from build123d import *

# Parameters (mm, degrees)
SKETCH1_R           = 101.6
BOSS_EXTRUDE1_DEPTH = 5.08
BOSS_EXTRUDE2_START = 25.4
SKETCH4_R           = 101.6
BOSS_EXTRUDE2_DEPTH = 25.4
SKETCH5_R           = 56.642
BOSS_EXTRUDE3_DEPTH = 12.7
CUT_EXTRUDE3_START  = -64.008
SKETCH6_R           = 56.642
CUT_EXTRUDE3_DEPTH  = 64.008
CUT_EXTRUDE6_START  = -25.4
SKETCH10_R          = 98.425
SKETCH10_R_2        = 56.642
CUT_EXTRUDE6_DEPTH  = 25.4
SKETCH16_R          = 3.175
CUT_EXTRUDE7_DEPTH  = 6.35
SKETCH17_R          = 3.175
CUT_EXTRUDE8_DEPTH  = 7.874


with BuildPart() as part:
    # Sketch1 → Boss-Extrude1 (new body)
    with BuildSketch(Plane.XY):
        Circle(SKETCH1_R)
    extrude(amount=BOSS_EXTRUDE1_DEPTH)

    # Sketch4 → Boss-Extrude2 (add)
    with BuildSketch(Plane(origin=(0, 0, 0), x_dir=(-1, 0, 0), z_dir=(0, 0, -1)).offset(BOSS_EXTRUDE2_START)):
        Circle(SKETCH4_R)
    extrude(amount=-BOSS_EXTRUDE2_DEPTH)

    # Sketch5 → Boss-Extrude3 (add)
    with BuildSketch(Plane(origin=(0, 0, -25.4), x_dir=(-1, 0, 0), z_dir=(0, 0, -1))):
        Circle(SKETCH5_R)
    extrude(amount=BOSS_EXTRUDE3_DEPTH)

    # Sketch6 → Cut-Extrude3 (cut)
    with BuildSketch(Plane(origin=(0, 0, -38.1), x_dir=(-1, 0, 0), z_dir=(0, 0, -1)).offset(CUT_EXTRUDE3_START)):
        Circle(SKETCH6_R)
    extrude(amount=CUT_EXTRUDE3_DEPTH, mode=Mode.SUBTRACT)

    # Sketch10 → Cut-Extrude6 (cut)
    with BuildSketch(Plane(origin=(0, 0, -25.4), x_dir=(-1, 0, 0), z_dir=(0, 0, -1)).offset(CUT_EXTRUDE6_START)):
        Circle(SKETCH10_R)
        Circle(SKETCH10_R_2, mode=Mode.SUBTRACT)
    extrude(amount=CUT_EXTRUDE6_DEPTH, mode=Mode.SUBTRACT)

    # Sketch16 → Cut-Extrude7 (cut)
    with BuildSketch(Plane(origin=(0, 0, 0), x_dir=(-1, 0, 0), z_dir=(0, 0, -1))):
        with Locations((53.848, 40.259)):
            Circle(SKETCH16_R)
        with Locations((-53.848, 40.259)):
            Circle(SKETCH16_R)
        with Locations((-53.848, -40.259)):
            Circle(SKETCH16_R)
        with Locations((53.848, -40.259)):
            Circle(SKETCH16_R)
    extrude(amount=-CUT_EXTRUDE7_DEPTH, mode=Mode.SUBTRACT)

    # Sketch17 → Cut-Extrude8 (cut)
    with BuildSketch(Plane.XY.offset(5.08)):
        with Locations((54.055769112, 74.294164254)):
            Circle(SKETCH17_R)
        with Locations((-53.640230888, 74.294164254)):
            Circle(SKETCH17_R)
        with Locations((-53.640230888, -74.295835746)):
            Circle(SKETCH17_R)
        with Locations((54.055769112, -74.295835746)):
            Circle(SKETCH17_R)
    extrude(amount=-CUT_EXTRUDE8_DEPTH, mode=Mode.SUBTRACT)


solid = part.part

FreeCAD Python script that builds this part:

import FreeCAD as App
import Part
import Sketcher
Q = App.Units.Quantity

doc = App.newDocument("Part")
params = doc.addObject("Spreadsheet::Sheet", "Params")
for row, (alias, value) in enumerate([
    ("sketch1_diameter", "8 in"),
    ("pad1_length", "0.2 in"),
    ("sketch2_diameter", "8 in"),
    ("pad2_length", "1 in"),
    ("sketch3_diameter", "4.46 in"),
    ("pad3_length", "0.5 in"),
    ("sketch4_diameter", "4.46 in"),
    ("pocket1_length", "2.52 in"),
    ("sketch5_diameter", "7.75 in"),
    ("sketch5_diameter2", "4.46 in"),
    ("pocket2_length", "1 in"),
    ("sketch6_diameter", "0.25 in"),
    ("pocket3_length", "0.25 in"),
    ("sketch7_diameter", "0.25 in"),
    ("pocket4_length", "0.31 in"),
], start=1):
    params.set(f"A{row}", alias)
    params.set(f"B{row}", "=" + value)
    params.setAlias(f"B{row}", alias)

body = doc.addObject("PartDesign::Body", "Body")

sketch1 = body.newObject("Sketcher::SketchObject", "Sketch")
sketch1.AttachmentSupport = (doc.getObject("XY_Plane"), [""])
sketch1.MapMode = "FlatFace"
sketch1.addGeometry(Part.Circle(App.Vector(0, 0, 0), App.Vector(0, 0, 1), 102), False)
sketch1.addConstraint([
    Sketcher.Constraint("Coincident", 0, 3, -1, 1),
    Sketcher.Constraint("Diameter", 0, Q("8 in")),
])
sketch1.setExpression("Constraints[1]", "Params.sketch1_diameter")
pad1 = body.newObject("PartDesign::Pad", "Pad")
pad1.Profile = sketch1
pad1.setExpression("Length", "Params.pad1_length")

sketch2 = body.newObject("Sketcher::SketchObject", "Sketch001")
sketch2.AttachmentSupport = (doc.getObject("XY_Plane"), [""])
sketch2.MapMode = "FlatFace"
sketch2.AttachmentOffset = App.Placement(App.Vector(0, 0, -1 * 25.4), App.Rotation())
sketch2.addGeometry(Part.Circle(App.Vector(0, 0, 0), App.Vector(0, 0, 1), 102), False)
sketch2.addConstraint([
    Sketcher.Constraint("Coincident", 0, 3, -1, 1),
    Sketcher.Constraint("Diameter", 0, Q("8 in")),
])
sketch2.setExpression("Constraints[1]", "Params.sketch2_diameter")
pad2 = body.newObject("PartDesign::Pad", "Pad001")
pad2.Profile = sketch2
pad2.setExpression("Length", "Params.pad2_length")

sketch3 = body.newObject("Sketcher::SketchObject", "Sketch002")
sketch3.AttachmentSupport = (doc.getObject("XY_Plane"), [""])
sketch3.MapMode = "FlatFace"
sketch3.AttachmentOffset = App.Placement(App.Vector(0, 0, -1 * 25.4), App.Rotation())
sketch3.addGeometry(Part.Circle(App.Vector(0, 0, 0), App.Vector(0, 0, 1), 57), False)
sketch3.addConstraint([
    Sketcher.Constraint("Coincident", 0, 3, -1, 1),
    Sketcher.Constraint("Diameter", 0, Q("4.46 in")),
])
sketch3.setExpression("Constraints[1]", "Params.sketch3_diameter")
pad3 = body.newObject("PartDesign::Pad", "Pad002")
pad3.Profile = sketch3
pad3.setExpression("Length", "Params.pad3_length")
pad3.Reversed = True

sketch4 = body.newObject("Sketcher::SketchObject", "Sketch003")
sketch4.AttachmentSupport = (doc.getObject("XY_Plane"), [""])
sketch4.MapMode = "FlatFace"
sketch4.AttachmentOffset = App.Placement(App.Vector(0, 0, 1.02 * 25.4), App.Rotation())
sketch4.addGeometry(Part.Circle(App.Vector(0, 0, 0), App.Vector(0, 0, 1), 57), False)
sketch4.addConstraint([
    Sketcher.Constraint("Coincident", 0, 3, -1, 1),
    Sketcher.Constraint("Diameter", 0, Q("4.46 in")),
])
sketch4.setExpression("Constraints[1]", "Params.sketch4_diameter")
pocket1 = body.newObject("PartDesign::Pocket", "Pocket")
pocket1.Profile = sketch4
pocket1.setExpression("Length", "Params.pocket1_length")

sketch5 = body.newObject("Sketcher::SketchObject", "Sketch004")
sketch5.AttachmentSupport = (doc.getObject("XY_Plane"), [""])
sketch5.MapMode = "FlatFace"
sketch5.addGeometry([
    Part.Circle(App.Vector(0, 0, 0), App.Vector(0, 0, 1), 98),
    Part.Circle(App.Vector(0, 0, 0), App.Vector(0, 0, 1), 57),
], False)
sketch5.addConstraint([
    Sketcher.Constraint("Coincident", 0, 3, -1, 1),
    Sketcher.Constraint("Coincident", 1, 3, -1, 1),
    Sketcher.Constraint("Diameter", 0, Q("7.75 in")),
    Sketcher.Constraint("Diameter", 1, Q("4.46 in")),
])
sketch5.setExpression("Constraints[2]", "Params.sketch5_diameter")
sketch5.setExpression("Constraints[3]", "Params.sketch5_diameter2")
pocket2 = body.newObject("PartDesign::Pocket", "Pocket001")
pocket2.Profile = sketch5
pocket2.setExpression("Length", "Params.pocket2_length")

sketch6 = body.newObject("Sketcher::SketchObject", "Sketch005")
sketch6.AttachmentSupport = (doc.getObject("XY_Plane"), [""])
sketch6.MapMode = "FlatFace"
sketch6.addGeometry([
    Part.Circle(App.Vector(-53.8, 40.3, 0), App.Vector(0, 0, 1), 3.2),
    Part.Circle(App.Vector(53.8, 40.3, 0), App.Vector(0, 0, 1), 3.2),
    Part.Circle(App.Vector(53.8, -40.3, 0), App.Vector(0, 0, 1), 3.2),
    Part.Circle(App.Vector(-53.8, -40.3, 0), App.Vector(0, 0, 1), 3.2),
], False)
sketch6.addConstraint([
    Sketcher.Constraint("Equal", 0, 1),
    Sketcher.Constraint("Equal", 1, 2),
    Sketcher.Constraint("Equal", 2, 3),
    Sketcher.Constraint("Symmetric", 0, 3, 2, 3, -1, 1),
    Sketcher.Constraint("Symmetric", 1, 3, 3, 3, -1, 1),
    Sketcher.Constraint("Symmetric", 0, 3, 1, 3, -2),
    Sketcher.Constraint("Diameter", 0, Q("0.25 in")),
    Sketcher.Constraint("DistanceX", 0, 3, -1, 1, Q("2.12 in")),
    Sketcher.Constraint("DistanceY", 2, 3, 1, 3, Q("3.17 in")),
])
sketch6.setExpression("Constraints[6]", "Params.sketch6_diameter")
pocket3 = body.newObject("PartDesign::Pocket", "Pocket002")
pocket3.Profile = sketch6
pocket3.setExpression("Length", "Params.pocket3_length")
pocket3.Reversed = True

sketch7 = body.newObject("Sketcher::SketchObject", "Sketch006")
sketch7.AttachmentSupport = (doc.getObject("XY_Plane"), [""])
sketch7.MapMode = "FlatFace"
sketch7.AttachmentOffset = App.Placement(App.Vector(0, 0, 0.2 * 25.4), App.Rotation())
sketch7.addGeometry([
    Part.Circle(App.Vector(54.1, 74.3, 0), App.Vector(0, 0, 1), 3.2),
    Part.Circle(App.Vector(-53.6, 74.3, 0), App.Vector(0, 0, 1), 3.2),
    Part.Circle(App.Vector(-53.6, -74.3, 0), App.Vector(0, 0, 1), 3.2),
    Part.Circle(App.Vector(54.1, -74.3, 0), App.Vector(0, 0, 1), 3.2),
], False)
sketch7.addConstraint([
    Sketcher.Constraint("Equal", 0, 1),
    Sketcher.Constraint("Equal", 1, 2),
    Sketcher.Constraint("Equal", 2, 3),
    Sketcher.Constraint("Horizontal", 0, 3, 1, 3),
    Sketcher.Constraint("Horizontal", 2, 3, 3, 3),
    Sketcher.Constraint("Vertical", 1, 3, 2, 3),
    Sketcher.Constraint("Vertical", 0, 3, 3, 3),
    Sketcher.Constraint("Diameter", 0, Q("0.25 in")),
    Sketcher.Constraint("DistanceX", 1, 3, 0, 3, Q("4.24 in")),
    Sketcher.Constraint("DistanceY", 2, 3, 1, 3, Q("5.85 in")),
    Sketcher.Constraint("DistanceX", -1, 1, 0, 3, 54.055769),
    Sketcher.Constraint("DistanceY", -1, 1, 0, 3, 74.294164),
])
sketch7.setExpression("Constraints[7]", "Params.sketch7_diameter")
pocket4 = body.newObject("PartDesign::Pocket", "Pocket003")
pocket4.Profile = sketch7
pocket4.setExpression("Length", "Params.pocket4_length")

doc.recompute()
